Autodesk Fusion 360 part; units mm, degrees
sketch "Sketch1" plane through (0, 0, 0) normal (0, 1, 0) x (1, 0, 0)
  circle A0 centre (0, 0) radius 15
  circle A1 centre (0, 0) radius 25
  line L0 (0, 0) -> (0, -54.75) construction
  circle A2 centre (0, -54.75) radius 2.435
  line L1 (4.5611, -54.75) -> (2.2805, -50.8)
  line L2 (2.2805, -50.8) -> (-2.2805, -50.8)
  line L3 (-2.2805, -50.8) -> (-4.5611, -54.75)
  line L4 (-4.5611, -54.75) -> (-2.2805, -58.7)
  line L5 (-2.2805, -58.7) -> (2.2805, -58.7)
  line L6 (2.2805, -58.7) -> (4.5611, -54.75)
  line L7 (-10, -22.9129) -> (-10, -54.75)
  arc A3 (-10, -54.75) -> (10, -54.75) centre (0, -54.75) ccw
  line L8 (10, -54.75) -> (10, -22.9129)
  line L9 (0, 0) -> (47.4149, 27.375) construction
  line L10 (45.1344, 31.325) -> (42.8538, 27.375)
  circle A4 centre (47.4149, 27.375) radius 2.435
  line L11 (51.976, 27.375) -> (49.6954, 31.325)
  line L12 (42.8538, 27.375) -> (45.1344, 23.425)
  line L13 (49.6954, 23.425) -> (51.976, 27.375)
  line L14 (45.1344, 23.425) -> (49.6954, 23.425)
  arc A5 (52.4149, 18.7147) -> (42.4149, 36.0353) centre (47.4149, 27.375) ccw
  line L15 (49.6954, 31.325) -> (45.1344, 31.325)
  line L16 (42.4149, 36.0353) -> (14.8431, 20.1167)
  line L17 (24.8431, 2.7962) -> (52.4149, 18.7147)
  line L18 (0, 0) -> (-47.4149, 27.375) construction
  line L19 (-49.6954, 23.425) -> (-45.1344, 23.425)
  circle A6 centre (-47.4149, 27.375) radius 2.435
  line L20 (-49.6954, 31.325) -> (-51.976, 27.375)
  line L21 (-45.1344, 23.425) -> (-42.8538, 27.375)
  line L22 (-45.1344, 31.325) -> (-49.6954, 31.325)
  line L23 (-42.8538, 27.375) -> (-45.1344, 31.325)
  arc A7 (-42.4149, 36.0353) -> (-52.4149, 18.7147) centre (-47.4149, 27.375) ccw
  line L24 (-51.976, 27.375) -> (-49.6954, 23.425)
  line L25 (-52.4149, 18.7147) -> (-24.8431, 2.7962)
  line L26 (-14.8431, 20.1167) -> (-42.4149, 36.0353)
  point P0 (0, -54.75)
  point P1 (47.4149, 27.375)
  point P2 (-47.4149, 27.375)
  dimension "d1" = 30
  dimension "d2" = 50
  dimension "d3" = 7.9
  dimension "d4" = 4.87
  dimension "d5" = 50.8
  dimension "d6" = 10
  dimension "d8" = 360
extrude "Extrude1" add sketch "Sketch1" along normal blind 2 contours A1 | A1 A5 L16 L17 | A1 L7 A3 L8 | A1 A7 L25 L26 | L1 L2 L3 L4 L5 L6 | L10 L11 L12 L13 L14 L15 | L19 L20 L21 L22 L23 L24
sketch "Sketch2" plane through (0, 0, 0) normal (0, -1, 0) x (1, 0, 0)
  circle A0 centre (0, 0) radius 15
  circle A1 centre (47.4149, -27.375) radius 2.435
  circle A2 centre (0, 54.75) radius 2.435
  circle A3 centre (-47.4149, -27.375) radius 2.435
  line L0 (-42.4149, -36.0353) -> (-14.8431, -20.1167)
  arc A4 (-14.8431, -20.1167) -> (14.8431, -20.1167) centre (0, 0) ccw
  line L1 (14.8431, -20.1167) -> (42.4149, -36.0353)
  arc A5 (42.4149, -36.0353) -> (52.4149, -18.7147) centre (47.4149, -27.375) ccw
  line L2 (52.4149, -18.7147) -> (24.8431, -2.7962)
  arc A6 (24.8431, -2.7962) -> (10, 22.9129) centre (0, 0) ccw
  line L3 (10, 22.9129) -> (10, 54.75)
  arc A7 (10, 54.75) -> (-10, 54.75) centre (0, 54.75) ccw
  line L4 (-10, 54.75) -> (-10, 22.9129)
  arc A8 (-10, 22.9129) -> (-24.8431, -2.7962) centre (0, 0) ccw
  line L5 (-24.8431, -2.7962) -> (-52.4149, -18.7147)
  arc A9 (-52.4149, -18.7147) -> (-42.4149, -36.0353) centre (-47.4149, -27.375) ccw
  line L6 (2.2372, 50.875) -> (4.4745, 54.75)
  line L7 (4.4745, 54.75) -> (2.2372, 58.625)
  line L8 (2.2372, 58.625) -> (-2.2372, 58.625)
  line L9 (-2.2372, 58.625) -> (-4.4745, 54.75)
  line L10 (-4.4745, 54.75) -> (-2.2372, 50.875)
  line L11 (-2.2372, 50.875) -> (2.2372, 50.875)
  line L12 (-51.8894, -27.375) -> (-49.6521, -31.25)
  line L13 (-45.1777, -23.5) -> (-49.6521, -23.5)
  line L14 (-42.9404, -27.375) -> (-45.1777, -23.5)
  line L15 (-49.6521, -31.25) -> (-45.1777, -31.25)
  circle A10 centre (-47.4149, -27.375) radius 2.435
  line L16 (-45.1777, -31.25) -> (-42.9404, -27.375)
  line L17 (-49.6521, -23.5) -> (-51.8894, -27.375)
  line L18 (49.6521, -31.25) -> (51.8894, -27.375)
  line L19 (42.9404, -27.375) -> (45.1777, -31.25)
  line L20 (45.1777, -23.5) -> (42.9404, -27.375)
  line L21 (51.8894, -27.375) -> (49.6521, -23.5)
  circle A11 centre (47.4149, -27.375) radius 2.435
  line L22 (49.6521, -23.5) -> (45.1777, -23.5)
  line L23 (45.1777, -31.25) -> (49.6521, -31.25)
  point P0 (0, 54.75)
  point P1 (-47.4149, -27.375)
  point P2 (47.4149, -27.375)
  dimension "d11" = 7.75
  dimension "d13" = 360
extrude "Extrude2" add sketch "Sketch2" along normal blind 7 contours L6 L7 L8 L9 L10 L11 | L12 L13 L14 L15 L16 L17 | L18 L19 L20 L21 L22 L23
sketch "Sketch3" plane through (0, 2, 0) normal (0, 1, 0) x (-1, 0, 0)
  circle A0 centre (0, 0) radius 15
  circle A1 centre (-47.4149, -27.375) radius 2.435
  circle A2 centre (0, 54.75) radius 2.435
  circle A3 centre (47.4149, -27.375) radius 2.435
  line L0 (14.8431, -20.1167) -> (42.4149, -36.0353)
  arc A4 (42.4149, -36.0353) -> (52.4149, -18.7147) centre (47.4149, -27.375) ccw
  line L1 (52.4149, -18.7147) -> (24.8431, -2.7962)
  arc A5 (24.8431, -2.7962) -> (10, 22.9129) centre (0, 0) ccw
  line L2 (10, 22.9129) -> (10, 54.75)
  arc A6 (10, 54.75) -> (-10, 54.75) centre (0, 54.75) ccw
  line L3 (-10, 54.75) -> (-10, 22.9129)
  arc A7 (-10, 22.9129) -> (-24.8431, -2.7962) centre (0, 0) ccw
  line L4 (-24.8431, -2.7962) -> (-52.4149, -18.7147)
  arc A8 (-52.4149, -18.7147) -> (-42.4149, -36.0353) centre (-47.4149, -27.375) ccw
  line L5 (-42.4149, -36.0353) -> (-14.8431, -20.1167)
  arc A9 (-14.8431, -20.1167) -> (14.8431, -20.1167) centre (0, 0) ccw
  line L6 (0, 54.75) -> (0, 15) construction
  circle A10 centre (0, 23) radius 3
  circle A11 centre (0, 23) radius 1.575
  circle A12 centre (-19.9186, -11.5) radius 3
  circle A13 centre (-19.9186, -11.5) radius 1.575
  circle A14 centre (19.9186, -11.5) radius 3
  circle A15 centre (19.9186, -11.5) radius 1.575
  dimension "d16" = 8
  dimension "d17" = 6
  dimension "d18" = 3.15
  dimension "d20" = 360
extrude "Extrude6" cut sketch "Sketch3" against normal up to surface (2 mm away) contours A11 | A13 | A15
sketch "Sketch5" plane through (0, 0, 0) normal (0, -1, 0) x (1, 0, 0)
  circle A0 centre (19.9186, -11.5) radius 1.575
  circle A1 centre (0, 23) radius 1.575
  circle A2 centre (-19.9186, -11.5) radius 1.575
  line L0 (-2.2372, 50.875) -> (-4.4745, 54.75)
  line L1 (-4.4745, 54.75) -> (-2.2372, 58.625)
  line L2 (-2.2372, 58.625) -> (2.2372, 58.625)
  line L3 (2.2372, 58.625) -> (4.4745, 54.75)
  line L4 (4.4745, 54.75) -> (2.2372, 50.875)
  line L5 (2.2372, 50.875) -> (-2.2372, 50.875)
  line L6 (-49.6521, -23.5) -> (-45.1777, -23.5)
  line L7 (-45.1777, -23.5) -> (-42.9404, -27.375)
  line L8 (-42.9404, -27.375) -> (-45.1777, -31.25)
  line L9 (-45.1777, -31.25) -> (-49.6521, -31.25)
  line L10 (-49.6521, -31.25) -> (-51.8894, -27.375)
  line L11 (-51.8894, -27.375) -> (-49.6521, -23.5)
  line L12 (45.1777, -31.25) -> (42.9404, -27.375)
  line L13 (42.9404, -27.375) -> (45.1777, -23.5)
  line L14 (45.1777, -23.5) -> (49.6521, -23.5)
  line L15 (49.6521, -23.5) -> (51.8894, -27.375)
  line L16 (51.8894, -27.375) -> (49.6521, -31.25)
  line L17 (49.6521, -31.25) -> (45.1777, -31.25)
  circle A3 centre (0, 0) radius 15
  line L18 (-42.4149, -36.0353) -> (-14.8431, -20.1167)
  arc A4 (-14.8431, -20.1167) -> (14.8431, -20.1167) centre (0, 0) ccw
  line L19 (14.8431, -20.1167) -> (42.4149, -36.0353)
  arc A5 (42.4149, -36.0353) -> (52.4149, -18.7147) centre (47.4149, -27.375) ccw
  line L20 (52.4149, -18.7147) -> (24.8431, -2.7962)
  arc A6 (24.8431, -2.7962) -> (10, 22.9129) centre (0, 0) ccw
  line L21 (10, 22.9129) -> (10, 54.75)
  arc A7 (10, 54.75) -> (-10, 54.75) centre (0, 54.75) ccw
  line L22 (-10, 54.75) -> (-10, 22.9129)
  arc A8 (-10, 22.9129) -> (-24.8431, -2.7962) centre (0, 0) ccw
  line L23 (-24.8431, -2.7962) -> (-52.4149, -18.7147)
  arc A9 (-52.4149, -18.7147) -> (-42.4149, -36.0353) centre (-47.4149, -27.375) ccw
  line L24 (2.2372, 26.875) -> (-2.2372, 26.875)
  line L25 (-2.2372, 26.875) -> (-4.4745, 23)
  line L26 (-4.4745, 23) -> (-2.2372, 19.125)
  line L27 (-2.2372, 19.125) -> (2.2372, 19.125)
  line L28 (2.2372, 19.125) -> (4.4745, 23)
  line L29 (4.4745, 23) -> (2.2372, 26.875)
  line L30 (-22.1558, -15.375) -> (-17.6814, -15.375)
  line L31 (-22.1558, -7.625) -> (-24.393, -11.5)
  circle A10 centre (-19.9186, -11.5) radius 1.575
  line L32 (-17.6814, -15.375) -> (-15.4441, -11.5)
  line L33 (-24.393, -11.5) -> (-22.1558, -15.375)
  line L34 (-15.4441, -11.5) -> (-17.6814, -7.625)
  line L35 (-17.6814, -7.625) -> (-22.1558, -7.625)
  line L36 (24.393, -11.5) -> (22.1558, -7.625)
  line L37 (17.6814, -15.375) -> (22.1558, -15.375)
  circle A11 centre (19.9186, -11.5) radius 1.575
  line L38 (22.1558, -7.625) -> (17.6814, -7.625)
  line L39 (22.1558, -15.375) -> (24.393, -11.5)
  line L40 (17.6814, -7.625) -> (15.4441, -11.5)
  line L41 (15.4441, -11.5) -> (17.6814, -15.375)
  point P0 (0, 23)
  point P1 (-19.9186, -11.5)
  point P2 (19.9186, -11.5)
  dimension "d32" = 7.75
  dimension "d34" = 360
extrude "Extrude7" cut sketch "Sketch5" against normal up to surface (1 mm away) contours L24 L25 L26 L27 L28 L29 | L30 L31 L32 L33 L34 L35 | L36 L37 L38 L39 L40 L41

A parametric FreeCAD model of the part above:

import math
import FreeCAD as App
import Part
import Sketcher

V = App.Vector
Q = App.Units.Quantity

doc = App.newDocument("Part")
body = doc.addObject("PartDesign::Body", "Body")

sketch1 = body.newObject("Sketcher::SketchObject", "Sketch")
sketch1.AttachmentSupport = (doc.getObject("XZ_Plane"), [""])
sketch1.MapMode = "FlatFace"
sketch1.addGeometry([
    Part.ArcOfCircle(Part.Circle(V(0, 0, 0), V(0, 0, 1), 25), math.radians(-6.421864), math.radians(66.421841)),
    Part.LineSegment(V(24.8431, -2.7962, 0), V(52.4149, -18.7147, 0)),
    Part.ArcOfCircle(Part.Circle(V(47.4149, -27.375, 0), V(0, 0, 1), 10.00004), math.radians(-119.999868), math.radians(60.000132)),
    Part.LineSegment(V(42.4149, -36.0353, 0), V(14.8431, -20.1167, 0)),
    Part.ArcOfCircle(Part.Circle(V(0, 0, 0), V(0, 0, 1), 25), math.radians(-126.421748), math.radians(-53.578252)),
    Part.LineSegment(V(-14.8431, -20.1167, 0), V(-42.4149, -36.0353, 0)),
    Part.ArcOfCircle(Part.Circle(V(-47.4149, -27.375, 0), V(0, 0, 1), 10.00004), math.radians(119.999868), math.radians(299.999868)),
    Part.LineSegment(V(-52.4149, -18.7147, 0), V(-24.8431, -2.7962, 0)),
    Part.ArcOfCircle(Part.Circle(V(0, 0, 0), V(0, 0, 1), 25), math.radians(113.578159), math.radians(186.421864)),
    Part.LineSegment(V(-10, 22.9129, 0), V(-10, 54.75, 0)),
    Part.ArcOfCircle(Part.Circle(V(0, 54.75, 0), V(0, 0, 1), 10), math.radians(0), math.radians(180)),
    Part.LineSegment(V(10, 54.75, 0), V(10, 22.9129, 0)),
    Part.Circle(V(0, 0, 0), V(0, 0, 1), 15),
    Part.Circle(V(0, 54.75, 0), V(0, 0, 1), 2.435),
    Part.Circle(V(-47.4149, -27.375, 0), V(0, 0, 1), 2.435),
    Part.Circle(V(47.4149, -27.375, 0), V(0, 0, 1), 2.435),
], False)
sketch1.addConstraint([
    Sketcher.Constraint("Coincident", 0, 1, 1, 1),
    Sketcher.Constraint("Tangent", 1, 2, 2, 2),
    Sketcher.Constraint("Tangent", 2, 1, 3, 1),
    Sketcher.Constraint("Coincident", 3, 2, 4, 2),
    Sketcher.Constraint("Coincident", 4, 1, 5, 1),
    Sketcher.Constraint("Tangent", 5, 2, 6, 2),
    Sketcher.Constraint("Tangent", 6, 1, 7, 1),
    Sketcher.Constraint("Coincident", 7, 2, 8, 2),
    Sketcher.Constraint("Coincident", 8, 1, 9, 1),
    Sketcher.Constraint("Tangent", 9, 2, 10, 2),
    Sketcher.Constraint("Tangent", 10, 1, 11, 1),
    Sketcher.Constraint("Coincident", 11, 2, 0, 2),
    Sketcher.Constraint("Vertical", 9),
    Sketcher.Constraint("Vertical", 11),
    Sketcher.Constraint("Coincident", 0, 3, -1, 1),
    Sketcher.Constraint("Coincident", 4, 3, -1, 1),
    Sketcher.Constraint("Coincident", 8, 3, -1, 1),
    Sketcher.Constraint("Coincident", 12, 3, -1, 1),
    Sketcher.Constraint("Coincident", 13, 3, 10, 3),
    Sketcher.Constraint("Coincident", 14, 3, 6, 3),
    Sketcher.Constraint("Coincident", 15, 3, 2, 3),
    Sketcher.Constraint("Equal", 0, 4),
    Sketcher.Constraint("Equal", 2, 6),
    Sketcher.Constraint("Equal", 4, 8),
    Sketcher.Constraint("Equal", 6, 10),
    Sketcher.Constraint("Equal", 13, 14),
    Sketcher.Constraint("Equal", 14, 15),
    Sketcher.Constraint("Symmetric", 2, 3, 6, 3, -2),
    Sketcher.Constraint("PointOnObject", 10, 3, -2),
    Sketcher.Constraint("Parallel", 1, 3),
    Sketcher.Constraint("Parallel", 5, 7),
    Sketcher.Constraint("Horizontal", 3, 2, 4, 1),
    Sketcher.Constraint("Equal", 1, 3),
    Sketcher.Constraint("Diameter", 12, Q("30 mm")),
    Sketcher.Constraint("Radius", 0, Q("25 mm")),
    Sketcher.Constraint("Radius", 2, Q("10 mm")),
    Sketcher.Constraint("Diameter", 13, Q("4.87 mm")),
    Sketcher.Constraint("Angle", 1, Q("-29.9999 deg")),
    Sketcher.Constraint("DistanceY", 9, 1, 9, 2, Q("31.837 mm")),
    Sketcher.Constraint("DistanceX", -1, 1, 2, 3, Q("47.415 mm")),
])
pad1 = body.newObject("PartDesign::Pad", "Pad")
pad1.Profile = sketch1
pad1.Length = 2
pad1.Reversed = True

sketch2 = body.newObject("Sketcher::SketchObject", "Sketch001")
sketch2.AttachmentSupport = (doc.getObject("XZ_Plane"), [""])
sketch2.MapMode = "FlatFace"
sketch2.addGeometry([
    Part.LineSegment(V(-2.2372, 50.875, 0), V(2.2372, 50.875, 0)),
    Part.LineSegment(V(2.2372, 50.875, 0), V(4.4745, 54.75, 0)),
    Part.LineSegment(V(4.4745, 54.75, 0), V(2.2372, 58.625, 0)),
    Part.LineSegment(V(2.2372, 58.625, 0), V(-2.2372, 58.625, 0)),
    Part.LineSegment(V(-2.2372, 58.625, 0), V(-4.4745, 54.75, 0)),
    Part.LineSegment(V(-4.4745, 54.75, 0), V(-2.2372, 50.875, 0)),
    Part.Circle(V(0, 54.75, 0), V(0, 0, 1), 2.435),
    Part.LineSegment(V(-49.6521, -23.5, 0), V(-51.8894, -27.375, 0)),
    Part.LineSegment(V(-51.8894, -27.375, 0), V(-49.6521, -31.25, 0)),
    Part.LineSegment(V(-49.6521, -31.25, 0), V(-45.1777, -31.25, 0)),
    Part.LineSegment(V(-45.1777, -31.25, 0), V(-42.9404, -27.375, 0)),
    Part.LineSegment(V(-42.9404, -27.375, 0), V(-45.1777, -23.5, 0)),
    Part.LineSegment(V(-45.1777, -23.5, 0), V(-49.6521, -23.5, 0)),
    Part.Circle(V(-47.4149, -27.375, 0), V(0, 0, 1), 2.435),
    Part.LineSegment(V(45.1777, -31.25, 0), V(49.6521, -31.25, 0)),
    Part.LineSegment(V(49.6521, -31.25, 0), V(51.8894, -27.375, 0)),
    Part.LineSegment(V(51.8894, -27.375, 0), V(49.6521, -23.5, 0)),
    Part.LineSegment(V(49.6521, -23.5, 0), V(45.1777, -23.5, 0)),
    Part.LineSegment(V(45.1777, -23.5, 0), V(42.9404, -27.375, 0)),
    Part.LineSegment(V(42.9404, -27.375, 0), V(45.1777, -31.25, 0)),
    Part.Circle(V(47.4149, -27.375, 0), V(0, 0, 1), 2.435),
], False)
sketch2.addConstraint([
    Sketcher.Constraint("Coincident", 0, 2, 1, 1),
    Sketcher.Constraint("Coincident", 1, 2, 2, 1),
    Sketcher.Constraint("Coincident", 2, 2, 3, 1),
    Sketcher.Constraint("Coincident", 3, 2, 4, 1),
    Sketcher.Constraint("Coincident", 4, 2, 5, 1),
    Sketcher.Constraint("Coincident", 5, 2, 0, 1),
    Sketcher.Constraint("Coincident", 7, 2, 8, 1),
    Sketcher.Constraint("Coincident", 8, 2, 9, 1),
    Sketcher.Constraint("Coincident", 9, 2, 10, 1),
    Sketcher.Constraint("Coincident", 10, 2, 11, 1),
    Sketcher.Constraint("Coincident", 11, 2, 12, 1),
    Sketcher.Constraint("Coincident", 12, 2, 7, 1),
    Sketcher.Constraint("Coincident", 14, 2, 15, 1),
    Sketcher.Constraint("Coincident", 15, 2, 16, 1),
    Sketcher.Constraint("Coincident", 16, 2, 17, 1),
    Sketcher.Constraint("Coincident", 17, 2, 18, 1),
    Sketcher.Constraint("Coincident", 18, 2, 19, 1),
    Sketcher.Constraint("Coincident", 19, 2, 14, 1),
    Sketcher.Constraint("Horizontal", 0),
    Sketcher.Constraint("Horizontal", 3),
    Sketcher.Constraint("Horizontal", 9),
    Sketcher.Constraint("Horizontal", 12),
    Sketcher.Constraint("Horizontal", 14),
    Sketcher.Constraint("Horizontal", 17),
    Sketcher.Constraint("Equal", 6, 13),
    Sketcher.Constraint("Equal", 13, 20),
    Sketcher.Constraint("Symmetric", 13, 3, 20, 3, -2),
    Sketcher.Constraint("Symmetric", 1, 2, 4, 2, -2),
    Sketcher.Constraint("Symmetric", 8, 2, 14, 2, -2),
    Sketcher.Constraint("Symmetric", 7, 2, 15, 2, -2),
    Sketcher.Constraint("Symmetric", 12, 2, 16, 2, -2),
    Sketcher.Constraint("Symmetric", 10, 2, 18, 2, -2),
    Sketcher.Constraint("PointOnObject", 6, 3, -2),
    Sketcher.Constraint("Parallel", 1, 4),
    Sketcher.Constraint("Parallel", 2, 5),
    Sketcher.Constraint("Parallel", 4, 7),
    Sketcher.Constraint("Parallel", 5, 8),
    Sketcher.Constraint("Parallel", 7, 10),
    Sketcher.Constraint("Parallel", 8, 11),
    Sketcher.Constraint("Parallel", 10, 15),
    Sketcher.Constraint("Parallel", 15, 18),
    Sketcher.Constraint("Parallel", 16, 19),
    Sketcher.Constraint("Horizontal", 6, 3, 1, 2),
    Sketcher.Constraint("Horizontal", 20, 3, 7, 2),
    Sketcher.Constraint("Horizontal", 7, 2, 10, 2),
    Sketcher.Constraint("Vertical", 0, 2, 2, 2),
    Sketcher.Constraint("Vertical", 9, 2, 11, 2),
    Sketcher.Constraint("Equal", 3, 9),
    Sketcher.Constraint("Equal", 5, 7),
    Sketcher.Constraint("Diameter", 6, Q("4.87 mm")),
    Sketcher.Constraint("Angle", 1, Q("59.9992 deg")),
    Sketcher.Constraint("DistanceY", 0, 2, 2, 2, Q("7.75 mm")),
    Sketcher.Constraint("DistanceY", 20, 3, 2, 2, Q("86 mm")),
    Sketcher.Constraint("DistanceY", 11, 2, -1, 1, Q("23.5 mm")),
    Sketcher.Constraint("DistanceX", 0, 1, 0, 2, Q("4.4744 mm")),
    Sketcher.Constraint("DistanceX", 13, 3, -1, 1, Q("47.415 mm")),
    Sketcher.Constraint("DistanceX", 8, 2, -1, 1, Q("49.652 mm")),
])
pad2 = body.newObject("PartDesign::Pad", "Pad001")
pad2.Profile = sketch2
pad2.Length = 7

sketch3 = body.newObject("Sketcher::SketchObject", "Sketch002")
sketch3.AttachmentSupport = (doc.getObject("XZ_Plane"), [""])
sketch3.MapMode = "FlatFace"
sketch3.AttachmentOffset = App.Placement(V(0, 0, -2), App.Rotation())
sketch3.addGeometry([
    Part.Circle(V(0, 23, 0), V(0, 0, 1), 1.575),
    Part.Circle(V(19.9186, -11.5, 0), V(0, 0, 1), 1.575),
    Part.Circle(V(-19.9186, -11.5, 0), V(0, 0, 1), 1.575),
], False)
sketch3.addConstraint([
    Sketcher.Constraint("Equal", 0, 1),
    Sketcher.Constraint("Equal", 1, 2),
    Sketcher.Constraint("Symmetric", 1, 3, 2, 3, -2),
    Sketcher.Constraint("PointOnObject", 0, 3, -2),
    Sketcher.Constraint("Diameter", 0, Q("3.15 mm")),
    Sketcher.Constraint("DistanceY", -1, 1, 0, 3, Q("23 mm")),
    Sketcher.Constraint("DistanceY", 1, 3, -1, 1, Q("11.5 mm")),
    Sketcher.Constraint("DistanceX", -1, 1, 1, 3, Q("19.9186 mm")),
])
pocket1 = body.newObject("PartDesign::Pocket", "Pocket")
pocket1.Profile = sketch3
pocket1.Length = 2
pocket1.Reversed = True

sketch4 = body.newObject("Sketcher::SketchObject", "Sketch003")
sketch4.AttachmentSupport = (doc.getObject("XZ_Plane"), [""])
sketch4.MapMode = "FlatFace"
sketch4.addGeometry([
    Part.LineSegment(V(4.4745, 23, 0), V(2.2372, 26.875, 0)),
    Part.LineSegment(V(2.2372, 26.875, 0), V(-2.2372, 26.875, 0)),
    Part.LineSegment(V(-2.2372, 26.875, 0), V(-4.4745, 23, 0)),
    Part.LineSegment(V(-4.4745, 23, 0), V(-2.2372, 19.125, 0)),
    Part.LineSegment(V(-2.2372, 19.125, 0), V(2.2372, 19.125, 0)),
    Part.LineSegment(V(2.2372, 19.125, 0), V(4.4745, 23, 0)),
    Part.Circle(V(0, 23, 0), V(0, 0, 1), 1.575),
    Part.LineSegment(V(-24.393, -11.5, 0), V(-22.1558, -15.375, 0)),
    Part.LineSegment(V(-22.1558, -15.375, 0), V(-17.6814, -15.375, 0)),
    Part.LineSegment(V(-17.6814, -15.375, 0), V(-15.4441, -11.5, 0)),
    Part.LineSegment(V(-15.4441, -11.5, 0), V(-17.6814, -7.625, 0)),
    Part.LineSegment(V(-17.6814, -7.625, 0), V(-22.1558, -7.625, 0)),
    Part.LineSegment(V(-22.1558, -7.625, 0), V(-24.393, -11.5, 0)),
    Part.Circle(V(-19.9186, -11.5, 0), V(0, 0, 1), 1.575),
    Part.LineSegment(V(22.1558, -15.375, 0), V(24.393, -11.5, 0)),
    Part.LineSegment(V(24.393, -11.5, 0), V(22.1558, -7.625, 0)),
    Part.LineSegment(V(22.1558, -7.625, 0), V(17.6814, -7.625, 0)),
    Part.LineSegment(V(17.6814, -7.625, 0), V(15.4441, -11.5, 0)),
    Part.LineSegment(V(15.4441, -11.5, 0), V(17.6814, -15.375, 0)),
    Part.LineSegment(V(17.6814, -15.375, 0), V(22.1558, -15.375, 0)),
    Part.Circle(V(19.9186, -11.5, 0), V(0, 0, 1), 1.575),
], False)
sketch4.addConstraint([
    Sketcher.Constraint("Coincident", 0, 2, 1, 1),
    Sketcher.Constraint("Coincident", 1, 2, 2, 1),
    Sketcher.Constraint("Coincident", 2, 2, 3, 1),
    Sketcher.Constraint("Coincident", 3, 2, 4, 1),
    Sketcher.Constraint("Coincident", 4, 2, 5, 1),
    Sketcher.Constraint("Coincident", 5, 2, 0, 1),
    Sketcher.Constraint("Coincident", 7, 2, 8, 1),
    Sketcher.Constraint("Coincident", 8, 2, 9, 1),
    Sketcher.Constraint("Coincident", 9, 2, 10, 1),
    Sketcher.Constraint("Coincident", 10, 2, 11, 1),
    Sketcher.Constraint("Coincident", 11, 2, 12, 1),
    Sketcher.Constraint("Coincident", 12, 2, 7, 1),
    Sketcher.Constraint("Coincident", 14, 2, 15, 1),
    Sketcher.Constraint("Coincident", 15, 2, 16, 1),
    Sketcher.Constraint("Coincident", 16, 2, 17, 1),
    Sketcher.Constraint("Coincident", 17, 2, 18, 1),
    Sketcher.Constraint("Coincident", 18, 2, 19, 1),
    Sketcher.Constraint("Coincident", 19, 2, 14, 1),
    Sketcher.Constraint("Horizontal", 1),
    Sketcher.Constraint("Horizontal", 4),
    Sketcher.Constraint("Horizontal", 8),
    Sketcher.Constraint("Horizontal", 11),
    Sketcher.Constraint("Horizontal", 16),
    Sketcher.Constraint("Horizontal", 19),
    Sketcher.Constraint("Equal", 6, 13),
    Sketcher.Constraint("Equal", 13, 20),
    Sketcher.Constraint("Symmetric", 13, 3, 20, 3, -2),
    Sketcher.Constraint("Symmetric", 2, 2, 5, 2, -2),
    Sketcher.Constraint("Symmetric", 12, 2, 14, 2, -2),
    Sketcher.Constraint("Symmetric", 11, 2, 15, 2, -2),
    Sketcher.Constraint("Symmetric", 9, 2, 17, 2, -2),
    Sketcher.Constraint("Symmetric", 8, 2, 18, 2, -2),
    Sketcher.Constraint("PointOnObject", 6, 3, -2),
    Sketcher.Constraint("Parallel", 0, 3),
    Sketcher.Constraint("Parallel", 2, 5),
    Sketcher.Constraint("Parallel", 3, 7),
    Sketcher.Constraint("Parallel", 5, 9),
    Sketcher.Constraint("Parallel", 7, 10),
    Sketcher.Constraint("Parallel", 9, 12),
    Sketcher.Constraint("Parallel", 12, 14),
    Sketcher.Constraint("Parallel", 10, 15),
    Sketcher.Constraint("Parallel", 14, 17),
    Sketcher.Constraint("Horizontal", 6, 3, 2, 2),
    Sketcher.Constraint("Horizontal", 20, 3, 9, 2),
    Sketcher.Constraint("Horizontal", 9, 2, 12, 2),
    Sketcher.Constraint("Vertical", 1, 2, 3, 2),
    Sketcher.Constraint("Vertical", 8, 2, 10, 2),
    Sketcher.Constraint("Equal", 4, 8),
    Sketcher.Constraint("Equal", 5, 7),
    Sketcher.Constraint("Diameter", 6, Q("3.15 mm")),
    Sketcher.Constraint("Angle", 0, Q("120.0008 deg")),
    Sketcher.Constraint("DistanceY", 3, 2, 1, 2, Q("7.75 mm")),
    Sketcher.Constraint("DistanceY", -1, 1, 6, 3, Q("23 mm")),
    Sketcher.Constraint("DistanceY", 13, 3, -1, 1, Q("11.5 mm")),
    Sketcher.Constraint("DistanceX", 8, 2, 20, 3, Q("37.6 mm")),
    Sketcher.Constraint("DistanceX", 1, 2, 1, 1, Q("4.4744 mm")),
    Sketcher.Constraint("DistanceX", 9, 2, -1, 1, Q("15.444 mm")),
])
pocket2 = body.newObject("PartDesign::Pocket", "Pocket001")
pocket2.Profile = sketch4
pocket2.Length = 1

doc.recompute()
